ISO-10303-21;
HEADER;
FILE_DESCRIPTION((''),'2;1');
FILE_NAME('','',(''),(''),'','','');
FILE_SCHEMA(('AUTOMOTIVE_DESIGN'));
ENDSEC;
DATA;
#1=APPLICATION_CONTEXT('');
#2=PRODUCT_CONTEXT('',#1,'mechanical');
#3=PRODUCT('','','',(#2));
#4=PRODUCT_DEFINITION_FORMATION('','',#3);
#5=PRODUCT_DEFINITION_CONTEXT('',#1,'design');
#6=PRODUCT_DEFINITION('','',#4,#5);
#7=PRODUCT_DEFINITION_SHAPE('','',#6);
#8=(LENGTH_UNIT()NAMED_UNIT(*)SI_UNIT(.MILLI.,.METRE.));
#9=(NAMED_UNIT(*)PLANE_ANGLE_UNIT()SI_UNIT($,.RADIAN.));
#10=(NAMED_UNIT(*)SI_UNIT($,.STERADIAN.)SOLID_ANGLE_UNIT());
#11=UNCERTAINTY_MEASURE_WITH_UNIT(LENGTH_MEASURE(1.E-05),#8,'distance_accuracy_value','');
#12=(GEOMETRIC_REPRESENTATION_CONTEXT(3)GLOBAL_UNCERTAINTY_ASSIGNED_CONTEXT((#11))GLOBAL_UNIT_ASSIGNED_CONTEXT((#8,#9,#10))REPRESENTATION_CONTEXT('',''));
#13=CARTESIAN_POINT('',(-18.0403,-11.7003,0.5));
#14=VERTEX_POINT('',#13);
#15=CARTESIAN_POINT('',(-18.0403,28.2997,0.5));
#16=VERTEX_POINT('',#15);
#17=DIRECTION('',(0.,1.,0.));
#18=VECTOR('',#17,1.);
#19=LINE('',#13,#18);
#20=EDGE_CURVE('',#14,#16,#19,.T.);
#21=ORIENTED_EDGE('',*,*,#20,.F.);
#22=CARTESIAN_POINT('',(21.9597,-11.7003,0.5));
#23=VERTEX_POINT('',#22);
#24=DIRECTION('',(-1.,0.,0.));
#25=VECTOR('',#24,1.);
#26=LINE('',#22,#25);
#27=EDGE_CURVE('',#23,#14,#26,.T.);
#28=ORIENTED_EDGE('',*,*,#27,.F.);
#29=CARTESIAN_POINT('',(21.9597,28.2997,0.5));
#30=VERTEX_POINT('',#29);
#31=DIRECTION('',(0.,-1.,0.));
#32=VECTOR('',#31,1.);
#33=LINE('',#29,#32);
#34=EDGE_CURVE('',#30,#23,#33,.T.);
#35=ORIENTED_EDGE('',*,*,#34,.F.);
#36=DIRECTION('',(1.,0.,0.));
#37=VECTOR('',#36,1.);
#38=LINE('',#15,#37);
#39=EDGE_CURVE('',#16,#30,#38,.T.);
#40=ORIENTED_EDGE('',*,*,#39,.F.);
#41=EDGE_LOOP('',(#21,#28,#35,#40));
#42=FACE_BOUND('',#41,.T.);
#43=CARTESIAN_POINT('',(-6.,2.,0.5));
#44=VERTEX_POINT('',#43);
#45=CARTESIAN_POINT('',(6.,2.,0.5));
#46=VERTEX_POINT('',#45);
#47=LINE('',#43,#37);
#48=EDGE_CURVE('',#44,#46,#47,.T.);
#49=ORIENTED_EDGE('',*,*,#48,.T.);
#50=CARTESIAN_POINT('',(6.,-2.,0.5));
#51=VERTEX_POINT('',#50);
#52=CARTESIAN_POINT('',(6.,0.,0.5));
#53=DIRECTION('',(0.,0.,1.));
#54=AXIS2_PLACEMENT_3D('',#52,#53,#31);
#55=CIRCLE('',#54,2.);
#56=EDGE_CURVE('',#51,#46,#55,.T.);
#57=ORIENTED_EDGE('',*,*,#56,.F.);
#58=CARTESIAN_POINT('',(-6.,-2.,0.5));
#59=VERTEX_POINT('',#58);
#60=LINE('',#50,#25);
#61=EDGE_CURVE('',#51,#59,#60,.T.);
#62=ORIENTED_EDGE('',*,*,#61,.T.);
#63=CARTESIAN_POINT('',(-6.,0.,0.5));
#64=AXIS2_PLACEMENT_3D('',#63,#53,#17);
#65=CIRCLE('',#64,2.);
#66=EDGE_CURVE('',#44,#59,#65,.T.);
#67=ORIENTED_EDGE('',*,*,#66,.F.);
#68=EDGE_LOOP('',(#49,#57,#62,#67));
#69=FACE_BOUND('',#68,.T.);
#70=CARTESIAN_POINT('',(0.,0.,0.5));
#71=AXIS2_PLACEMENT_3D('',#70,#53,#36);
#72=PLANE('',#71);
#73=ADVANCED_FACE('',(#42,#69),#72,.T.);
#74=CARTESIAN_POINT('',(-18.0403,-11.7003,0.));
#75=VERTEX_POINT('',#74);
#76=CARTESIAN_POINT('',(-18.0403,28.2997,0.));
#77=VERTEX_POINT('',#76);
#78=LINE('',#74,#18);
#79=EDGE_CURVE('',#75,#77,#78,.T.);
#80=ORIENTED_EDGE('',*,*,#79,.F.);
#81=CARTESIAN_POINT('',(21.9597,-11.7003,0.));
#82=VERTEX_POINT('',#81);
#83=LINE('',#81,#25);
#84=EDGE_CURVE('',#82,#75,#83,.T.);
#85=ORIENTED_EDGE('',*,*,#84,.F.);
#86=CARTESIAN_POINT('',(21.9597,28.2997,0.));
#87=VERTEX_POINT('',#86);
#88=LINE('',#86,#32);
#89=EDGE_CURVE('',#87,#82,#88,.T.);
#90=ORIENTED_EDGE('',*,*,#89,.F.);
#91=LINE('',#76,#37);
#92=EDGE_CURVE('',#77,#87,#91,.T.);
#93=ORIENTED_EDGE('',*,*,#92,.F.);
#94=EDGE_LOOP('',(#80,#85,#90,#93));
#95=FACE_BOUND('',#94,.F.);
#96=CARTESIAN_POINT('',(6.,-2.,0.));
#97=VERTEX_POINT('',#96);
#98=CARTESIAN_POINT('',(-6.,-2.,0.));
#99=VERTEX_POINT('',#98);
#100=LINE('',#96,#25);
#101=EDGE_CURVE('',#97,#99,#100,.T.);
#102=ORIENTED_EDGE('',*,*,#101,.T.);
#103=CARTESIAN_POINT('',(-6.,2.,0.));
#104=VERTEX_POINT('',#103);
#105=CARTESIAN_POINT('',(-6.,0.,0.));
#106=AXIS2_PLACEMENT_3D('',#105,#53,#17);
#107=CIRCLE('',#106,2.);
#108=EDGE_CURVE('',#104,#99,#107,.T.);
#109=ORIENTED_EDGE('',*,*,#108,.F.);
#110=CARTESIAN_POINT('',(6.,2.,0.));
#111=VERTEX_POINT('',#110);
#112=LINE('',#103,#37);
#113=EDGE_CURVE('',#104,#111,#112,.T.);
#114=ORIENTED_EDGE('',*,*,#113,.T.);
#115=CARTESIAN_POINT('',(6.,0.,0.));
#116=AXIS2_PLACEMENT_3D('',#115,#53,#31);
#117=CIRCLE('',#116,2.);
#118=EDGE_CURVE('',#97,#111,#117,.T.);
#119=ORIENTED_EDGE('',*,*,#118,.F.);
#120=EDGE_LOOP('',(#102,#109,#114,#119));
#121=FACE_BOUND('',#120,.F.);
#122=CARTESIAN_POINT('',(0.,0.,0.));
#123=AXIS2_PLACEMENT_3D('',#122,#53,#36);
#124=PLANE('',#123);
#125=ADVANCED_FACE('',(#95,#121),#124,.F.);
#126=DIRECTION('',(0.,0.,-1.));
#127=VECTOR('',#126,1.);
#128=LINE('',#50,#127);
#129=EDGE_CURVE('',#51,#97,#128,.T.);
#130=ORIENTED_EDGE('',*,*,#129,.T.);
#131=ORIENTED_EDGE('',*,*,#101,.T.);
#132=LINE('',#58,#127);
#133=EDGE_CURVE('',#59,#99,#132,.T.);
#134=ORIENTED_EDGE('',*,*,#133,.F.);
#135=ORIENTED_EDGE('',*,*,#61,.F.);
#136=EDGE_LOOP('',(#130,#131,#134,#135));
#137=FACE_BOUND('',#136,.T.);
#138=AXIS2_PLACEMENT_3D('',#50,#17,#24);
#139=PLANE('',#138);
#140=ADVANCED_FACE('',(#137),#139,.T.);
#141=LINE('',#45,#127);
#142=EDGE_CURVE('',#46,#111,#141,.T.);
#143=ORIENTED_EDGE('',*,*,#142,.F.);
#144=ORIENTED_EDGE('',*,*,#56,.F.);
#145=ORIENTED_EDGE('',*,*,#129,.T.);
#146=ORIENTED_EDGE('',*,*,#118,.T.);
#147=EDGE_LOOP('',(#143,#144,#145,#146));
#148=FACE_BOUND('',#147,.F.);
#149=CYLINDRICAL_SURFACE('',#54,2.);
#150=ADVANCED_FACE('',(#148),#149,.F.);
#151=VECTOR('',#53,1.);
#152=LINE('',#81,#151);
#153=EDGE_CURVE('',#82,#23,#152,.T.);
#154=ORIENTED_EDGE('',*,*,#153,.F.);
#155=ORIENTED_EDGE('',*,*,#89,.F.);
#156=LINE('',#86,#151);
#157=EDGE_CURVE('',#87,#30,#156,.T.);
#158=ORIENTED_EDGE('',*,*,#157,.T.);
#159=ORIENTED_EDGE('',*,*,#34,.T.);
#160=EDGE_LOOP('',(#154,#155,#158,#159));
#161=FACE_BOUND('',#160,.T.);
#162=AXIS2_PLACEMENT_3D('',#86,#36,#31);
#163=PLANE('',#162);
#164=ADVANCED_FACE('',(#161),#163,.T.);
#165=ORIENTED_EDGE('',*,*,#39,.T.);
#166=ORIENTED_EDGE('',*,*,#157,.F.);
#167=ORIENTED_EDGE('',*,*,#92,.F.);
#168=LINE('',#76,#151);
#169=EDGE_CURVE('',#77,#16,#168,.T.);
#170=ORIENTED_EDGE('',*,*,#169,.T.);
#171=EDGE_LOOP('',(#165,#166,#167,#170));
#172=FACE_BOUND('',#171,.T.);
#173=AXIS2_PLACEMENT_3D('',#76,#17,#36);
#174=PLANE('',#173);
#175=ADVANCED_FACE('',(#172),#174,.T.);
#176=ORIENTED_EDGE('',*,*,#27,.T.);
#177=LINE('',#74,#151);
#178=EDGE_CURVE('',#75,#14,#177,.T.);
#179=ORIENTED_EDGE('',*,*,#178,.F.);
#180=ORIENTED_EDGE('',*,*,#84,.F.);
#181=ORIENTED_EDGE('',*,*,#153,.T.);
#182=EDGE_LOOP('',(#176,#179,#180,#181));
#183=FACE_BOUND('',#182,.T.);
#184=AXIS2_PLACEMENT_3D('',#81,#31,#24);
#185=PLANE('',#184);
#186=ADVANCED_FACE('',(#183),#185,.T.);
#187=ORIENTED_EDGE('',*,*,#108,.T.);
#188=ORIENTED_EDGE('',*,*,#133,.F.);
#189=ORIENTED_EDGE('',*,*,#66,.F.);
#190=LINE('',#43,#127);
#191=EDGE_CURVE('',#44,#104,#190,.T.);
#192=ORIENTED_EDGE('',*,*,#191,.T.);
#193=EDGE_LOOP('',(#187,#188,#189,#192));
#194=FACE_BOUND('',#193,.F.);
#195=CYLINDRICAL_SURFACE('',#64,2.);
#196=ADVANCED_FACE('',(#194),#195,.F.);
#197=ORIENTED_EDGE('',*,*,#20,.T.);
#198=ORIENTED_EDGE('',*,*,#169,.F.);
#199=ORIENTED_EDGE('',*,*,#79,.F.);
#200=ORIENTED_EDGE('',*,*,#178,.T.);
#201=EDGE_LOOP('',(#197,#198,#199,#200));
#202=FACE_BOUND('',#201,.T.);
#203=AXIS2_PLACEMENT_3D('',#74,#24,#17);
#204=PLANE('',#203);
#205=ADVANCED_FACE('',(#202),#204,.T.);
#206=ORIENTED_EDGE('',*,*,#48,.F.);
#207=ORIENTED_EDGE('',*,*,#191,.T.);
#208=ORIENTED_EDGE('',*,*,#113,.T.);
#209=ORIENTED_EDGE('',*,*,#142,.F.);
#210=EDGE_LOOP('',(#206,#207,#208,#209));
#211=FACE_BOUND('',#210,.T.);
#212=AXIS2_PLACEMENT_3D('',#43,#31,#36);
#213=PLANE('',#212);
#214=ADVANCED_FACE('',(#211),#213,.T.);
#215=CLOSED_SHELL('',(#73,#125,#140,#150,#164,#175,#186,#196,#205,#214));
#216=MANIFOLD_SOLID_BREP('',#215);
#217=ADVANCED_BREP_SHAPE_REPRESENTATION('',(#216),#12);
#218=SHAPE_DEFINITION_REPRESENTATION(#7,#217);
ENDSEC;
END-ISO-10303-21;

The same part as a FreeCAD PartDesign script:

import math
import FreeCAD as App
import Part
import Sketcher

V = App.Vector
Q = App.Units.Quantity


def add_polygon(sketch, points):
    """Adds a closed chain of lines whose ends are joined by coincident constraints."""
    first, n = sketch.GeometryCount, len(points)
    for a, b in zip(points, points[1:] + points[:1]):
        sketch.addGeometry(Part.LineSegment(App.Vector(*a, 0), App.Vector(*b, 0)), False)
    for i in range(n):
        sketch.addConstraint(Sketcher.Constraint("Coincident", first + i, 2, first + (i + 1) % n, 1))

doc = App.newDocument("Part")
body = doc.addObject("PartDesign::Body", "Body")

sketch1 = doc.addObject("Sketcher::SketchObject", "Sketch")
body.addObject(sketch1)
sketch1.AttachmentSupport = (doc.XY_Plane, [""])
sketch1.MapMode = "FlatFace"
add_polygon(sketch1, [(21.9597, 28.2997), (-18.0403, 28.2997), (-18.0403, -11.7003), (21.9597, -11.7003)])
sketch1.addConstraint([
    Sketcher.Constraint("Horizontal", 0),
    Sketcher.Constraint("Vertical", 1),
    Sketcher.Constraint("Horizontal", 2),
    Sketcher.Constraint("Vertical", 3),
    Sketcher.Constraint("Equal", 2, 1),
    Sketcher.Constraint("DistanceX", 0, 2, 0, 1, Q("40 mm")),
    Sketcher.Constraint("DistanceX", 0, 2, -1, 1, Q("18.0403 mm")),
    Sketcher.Constraint("DistanceY", -1, 1, 0, 2, Q("28.2997 mm")),
])
pad1 = doc.addObject("PartDesign::Pad", "Pad")
body.addObject(pad1)
pad1.Profile = sketch1
pad1.Length = 0.5

sketch2 = doc.addObject("Sketcher::SketchObject", "Sketch001")
body.addObject(sketch2)
sketch2.AttachmentSupport = (doc.XY_Plane, [""])
sketch2.MapMode = "FlatFace"
sketch2.AttachmentOffset = App.Placement(V(0, 0, 0.5), App.Rotation())
sketch2.addGeometry([
    Part.LineSegment(V(-6, -2, 0), V(6, -2, 0)),
    Part.ArcOfCircle(Part.Circle(V(6, 0, 0), V(0, 0, 1), 2), math.radians(-90), math.radians(90)),
    Part.LineSegment(V(6, 2, 0), V(-6, 2, 0)),
    Part.ArcOfCircle(Part.Circle(V(-6, 0, 0), V(0, 0, 1), 2), math.radians(90), math.radians(270)),
], False)
sketch2.addConstraint([
    Sketcher.Constraint("Tangent", 0, 2, 1, 1),
    Sketcher.Constraint("Tangent", 1, 2, 2, 1),
    Sketcher.Constraint("Tangent", 2, 2, 3, 1),
    Sketcher.Constraint("Tangent", 3, 2, 0, 1),
    Sketcher.Constraint("Horizontal", 0),
    Sketcher.Constraint("Horizontal", 2),
    Sketcher.Constraint("Symmetric", 1, 3, 3, 3, -1, 1),
    Sketcher.Constraint("Radius", 1, Q("2 mm")),
    Sketcher.Constraint("DistanceX", 0, 1, 0, 2, Q("12 mm")),
])
pocket1 = doc.addObject("PartDesign::Pocket", "Pocket")
body.addObject(pocket1)
pocket1.Profile = sketch2
pocket1.Length = 0.5

doc.recompute()
